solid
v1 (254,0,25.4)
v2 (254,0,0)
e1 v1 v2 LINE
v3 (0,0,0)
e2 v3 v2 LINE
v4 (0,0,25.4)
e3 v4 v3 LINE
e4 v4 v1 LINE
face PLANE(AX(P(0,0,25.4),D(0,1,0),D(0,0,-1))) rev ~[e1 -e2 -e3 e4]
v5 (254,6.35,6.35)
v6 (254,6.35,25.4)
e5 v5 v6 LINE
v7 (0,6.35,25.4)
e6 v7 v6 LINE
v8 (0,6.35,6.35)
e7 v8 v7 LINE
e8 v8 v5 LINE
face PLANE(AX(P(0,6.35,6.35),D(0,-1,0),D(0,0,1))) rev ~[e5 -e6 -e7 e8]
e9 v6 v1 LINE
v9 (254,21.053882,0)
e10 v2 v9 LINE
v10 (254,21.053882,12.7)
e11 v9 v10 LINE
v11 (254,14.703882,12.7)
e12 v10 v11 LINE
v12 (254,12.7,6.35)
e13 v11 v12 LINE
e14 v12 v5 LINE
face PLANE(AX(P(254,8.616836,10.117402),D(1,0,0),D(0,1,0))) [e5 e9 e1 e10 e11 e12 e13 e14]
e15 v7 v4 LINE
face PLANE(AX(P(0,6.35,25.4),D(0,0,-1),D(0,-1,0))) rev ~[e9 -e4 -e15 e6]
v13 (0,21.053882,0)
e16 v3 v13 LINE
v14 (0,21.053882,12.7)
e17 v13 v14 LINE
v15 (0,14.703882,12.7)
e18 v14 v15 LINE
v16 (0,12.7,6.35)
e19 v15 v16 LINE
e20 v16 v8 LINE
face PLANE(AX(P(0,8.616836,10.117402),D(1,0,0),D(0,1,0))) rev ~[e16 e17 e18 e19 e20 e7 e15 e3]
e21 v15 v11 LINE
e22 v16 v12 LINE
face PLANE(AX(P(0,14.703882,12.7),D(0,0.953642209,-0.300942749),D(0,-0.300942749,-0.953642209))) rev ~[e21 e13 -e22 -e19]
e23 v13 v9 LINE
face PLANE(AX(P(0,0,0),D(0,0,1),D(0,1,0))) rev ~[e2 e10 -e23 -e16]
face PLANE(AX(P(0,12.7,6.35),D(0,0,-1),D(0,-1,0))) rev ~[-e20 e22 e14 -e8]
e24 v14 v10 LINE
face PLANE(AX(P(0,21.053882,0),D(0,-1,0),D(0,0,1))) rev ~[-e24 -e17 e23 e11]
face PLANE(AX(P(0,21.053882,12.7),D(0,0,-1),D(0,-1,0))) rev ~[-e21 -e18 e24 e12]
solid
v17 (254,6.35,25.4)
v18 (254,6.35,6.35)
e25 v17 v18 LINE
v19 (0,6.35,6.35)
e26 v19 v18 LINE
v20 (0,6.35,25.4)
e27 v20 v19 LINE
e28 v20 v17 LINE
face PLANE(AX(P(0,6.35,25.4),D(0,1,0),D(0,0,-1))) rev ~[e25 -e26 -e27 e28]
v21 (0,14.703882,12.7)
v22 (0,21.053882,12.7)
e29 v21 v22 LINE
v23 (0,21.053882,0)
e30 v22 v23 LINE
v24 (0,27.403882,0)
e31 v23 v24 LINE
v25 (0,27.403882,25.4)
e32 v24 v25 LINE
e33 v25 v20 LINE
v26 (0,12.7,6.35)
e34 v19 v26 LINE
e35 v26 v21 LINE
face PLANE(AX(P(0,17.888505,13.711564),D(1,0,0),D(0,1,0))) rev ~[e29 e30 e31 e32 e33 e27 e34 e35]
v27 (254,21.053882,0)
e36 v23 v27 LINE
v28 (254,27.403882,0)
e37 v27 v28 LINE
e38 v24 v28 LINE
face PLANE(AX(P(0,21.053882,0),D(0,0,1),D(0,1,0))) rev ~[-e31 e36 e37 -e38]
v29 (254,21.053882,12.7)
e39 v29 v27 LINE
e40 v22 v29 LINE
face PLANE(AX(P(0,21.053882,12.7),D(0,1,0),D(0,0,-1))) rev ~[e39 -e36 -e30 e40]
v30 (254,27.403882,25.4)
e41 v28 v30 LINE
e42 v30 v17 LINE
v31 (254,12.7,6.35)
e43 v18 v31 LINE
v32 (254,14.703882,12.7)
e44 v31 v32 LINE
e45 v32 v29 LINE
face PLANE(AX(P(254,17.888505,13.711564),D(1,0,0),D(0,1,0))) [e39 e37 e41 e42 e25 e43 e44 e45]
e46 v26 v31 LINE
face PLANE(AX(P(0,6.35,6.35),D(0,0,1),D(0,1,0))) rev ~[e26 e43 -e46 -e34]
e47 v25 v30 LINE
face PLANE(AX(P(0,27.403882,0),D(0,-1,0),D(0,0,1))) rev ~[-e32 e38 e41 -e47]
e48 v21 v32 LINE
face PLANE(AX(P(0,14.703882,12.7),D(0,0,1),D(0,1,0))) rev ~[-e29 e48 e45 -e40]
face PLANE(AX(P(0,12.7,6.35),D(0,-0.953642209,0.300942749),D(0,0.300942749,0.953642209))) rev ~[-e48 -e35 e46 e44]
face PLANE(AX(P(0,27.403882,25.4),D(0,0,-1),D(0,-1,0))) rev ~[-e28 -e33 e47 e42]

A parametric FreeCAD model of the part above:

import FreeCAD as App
import Part
import Sketcher
from FreeCAD import Vector
Q = App.Units.Quantity


def add_polygon(sketch, points):
    """Adds a closed chain of lines whose ends are joined by coincident constraints."""
    first, n = sketch.GeometryCount, len(points)
    for a, b in zip(points, points[1:] + points[:1]):
        sketch.addGeometry(Part.LineSegment(App.Vector(*a, 0), App.Vector(*b, 0)), False)
    for i in range(n):
        sketch.addConstraint(Sketcher.Constraint("Coincident", first + i, 2, first + (i + 1) % n, 1))

doc = App.newDocument("Part")
params = doc.addObject("Spreadsheet::Sheet", "Params")
for row, (alias, value) in enumerate([
    ("sketch1_height", "1 in"),
    ("sketch1_height2", "0.5 in"),
    ("sketch1_width", "0.25 in"),
    ("sketch1_height3", "0.75 in"),
    ("pad1_length", "10 in"),
    ("sketch2_height", "1 in"),
    ("sketch2_height2", "0.5 in"),
    ("sketch2_width", "0.25 in"),
    ("sketch2_height3", "0.75 in"),
    ("pad2_length", "10 in"),
], start=1):
    params.set(f"A{row}", alias)
    params.set(f"B{row}", "=" + value)
    params.setAlias(f"B{row}", alias)

body = doc.addObject("PartDesign::Body", "Body")

# Sketch on YZ plane
sketch1 = body.newObject("Sketcher::SketchObject", "Sketch")
sketch1.AttachmentSupport = (doc.getObject("YZ_Plane"), [""])
sketch1.MapMode = "FlatFace"
add_polygon(sketch1, [(0, 25), (0, 0), (21, 0), (21, 13), (15, 13), (13, 6), (6, 6), (6, 25)])  # lines 0-7
sketch1.addConstraint(Sketcher.Constraint("Vertical", 0))
sketch1.addConstraint(Sketcher.Constraint("Horizontal", 1))
sketch1.addConstraint(Sketcher.Constraint("Vertical", 2))
sketch1.addConstraint(Sketcher.Constraint("Horizontal", 3))
sketch1.addConstraint(Sketcher.Constraint("Horizontal", 5))
sketch1.addConstraint(Sketcher.Constraint("Vertical", 6))
sketch1.addConstraint(Sketcher.Constraint("Horizontal", 7))
sketch1.addConstraint(Sketcher.Constraint("Coincident", 0, 2, -1, 1))
sketch1.addConstraint(Sketcher.Constraint("Equal", 3, 5))
sketch1.addConstraint(Sketcher.Constraint("Equal", 5, 7))
sketch1.addConstraint(Sketcher.Constraint("DistanceY", 0, 2, 0, 1, Q("1 in")))
sketch1.addConstraint(Sketcher.Constraint("DistanceY", 2, 1, 2, 2, Q("0.5 in")))
sketch1.addConstraint(Sketcher.Constraint("DistanceX", 3, 2, 3, 1, Q("0.25 in")))
sketch1.addConstraint(Sketcher.Constraint("DistanceY", 6, 1, 6, 2, Q("0.75 in")))
sketch1.addConstraint(Sketcher.Constraint("Distance", 4, Q("6.658682 mm")))
sketch1.setExpression("Constraints[18]", "Params.sketch1_height")
sketch1.setExpression("Constraints[19]", "Params.sketch1_height2")
sketch1.setExpression("Constraints[20]", "Params.sketch1_width")
sketch1.setExpression("Constraints[21]", "Params.sketch1_height3")
pad1 = body.newObject("PartDesign::Pad", "Pad")
pad1.Profile = sketch1
pad1.setExpression("Length", "Params.pad1_length")
body2 = doc.addObject("PartDesign::Body", "Body001")

# Sketch on YZ plane
sketch2 = body2.newObject("Sketcher::SketchObject", "Sketch001")
sketch2.AttachmentSupport = (doc.getObject("YZ_Plane001"), [""])
sketch2.MapMode = "FlatFace"
add_polygon(sketch2, [(6, 25), (6, 6), (13, 6), (15, 13), (21, 13), (21, 0), (27, 0), (27, 25)])  # lines 0-7
sketch2.addConstraint(Sketcher.Constraint("Vertical", 0))
sketch2.addConstraint(Sketcher.Constraint("Horizontal", 1))
sketch2.addConstraint(Sketcher.Constraint("Horizontal", 3))
sketch2.addConstraint(Sketcher.Constraint("Vertical", 4))
sketch2.addConstraint(Sketcher.Constraint("Horizontal", 5))
sketch2.addConstraint(Sketcher.Constraint("Vertical", 6))
sketch2.addConstraint(Sketcher.Constraint("Horizontal", 7))
sketch2.addConstraint(Sketcher.Constraint("PointOnObject", 4, 2, -1))
sketch2.addConstraint(Sketcher.Constraint("Equal", 1, 3))
sketch2.addConstraint(Sketcher.Constraint("Equal", 3, 5))
sketch2.addConstraint(Sketcher.Constraint("DistanceY", 6, 1, 6, 2, Q("1 in")))
sketch2.addConstraint(Sketcher.Constraint("DistanceY", 4, 2, 4, 1, Q("0.5 in")))
sketch2.addConstraint(Sketcher.Constraint("DistanceX", 1, 1, 1, 2, Q("0.25 in")))
sketch2.addConstraint(Sketcher.Constraint("DistanceY", 0, 2, 0, 1, Q("0.75 in")))
sketch2.addConstraint(Sketcher.Constraint("DistanceX", -1, 1, 1, 2, Q("0.5 in")))
sketch2.addConstraint(Sketcher.Constraint("Distance", 2, Q("6.658682 mm")))
sketch2.setExpression("Constraints[18]", "Params.sketch2_height")
sketch2.setExpression("Constraints[19]", "Params.sketch2_height2")
sketch2.setExpression("Constraints[20]", "Params.sketch2_width")
sketch2.setExpression("Constraints[21]", "Params.sketch2_height3")
pad2 = body2.newObject("PartDesign::Pad", "Pad001")
pad2.Profile = sketch2
pad2.setExpression("Length", "Params.pad2_length")

doc.recompute()
